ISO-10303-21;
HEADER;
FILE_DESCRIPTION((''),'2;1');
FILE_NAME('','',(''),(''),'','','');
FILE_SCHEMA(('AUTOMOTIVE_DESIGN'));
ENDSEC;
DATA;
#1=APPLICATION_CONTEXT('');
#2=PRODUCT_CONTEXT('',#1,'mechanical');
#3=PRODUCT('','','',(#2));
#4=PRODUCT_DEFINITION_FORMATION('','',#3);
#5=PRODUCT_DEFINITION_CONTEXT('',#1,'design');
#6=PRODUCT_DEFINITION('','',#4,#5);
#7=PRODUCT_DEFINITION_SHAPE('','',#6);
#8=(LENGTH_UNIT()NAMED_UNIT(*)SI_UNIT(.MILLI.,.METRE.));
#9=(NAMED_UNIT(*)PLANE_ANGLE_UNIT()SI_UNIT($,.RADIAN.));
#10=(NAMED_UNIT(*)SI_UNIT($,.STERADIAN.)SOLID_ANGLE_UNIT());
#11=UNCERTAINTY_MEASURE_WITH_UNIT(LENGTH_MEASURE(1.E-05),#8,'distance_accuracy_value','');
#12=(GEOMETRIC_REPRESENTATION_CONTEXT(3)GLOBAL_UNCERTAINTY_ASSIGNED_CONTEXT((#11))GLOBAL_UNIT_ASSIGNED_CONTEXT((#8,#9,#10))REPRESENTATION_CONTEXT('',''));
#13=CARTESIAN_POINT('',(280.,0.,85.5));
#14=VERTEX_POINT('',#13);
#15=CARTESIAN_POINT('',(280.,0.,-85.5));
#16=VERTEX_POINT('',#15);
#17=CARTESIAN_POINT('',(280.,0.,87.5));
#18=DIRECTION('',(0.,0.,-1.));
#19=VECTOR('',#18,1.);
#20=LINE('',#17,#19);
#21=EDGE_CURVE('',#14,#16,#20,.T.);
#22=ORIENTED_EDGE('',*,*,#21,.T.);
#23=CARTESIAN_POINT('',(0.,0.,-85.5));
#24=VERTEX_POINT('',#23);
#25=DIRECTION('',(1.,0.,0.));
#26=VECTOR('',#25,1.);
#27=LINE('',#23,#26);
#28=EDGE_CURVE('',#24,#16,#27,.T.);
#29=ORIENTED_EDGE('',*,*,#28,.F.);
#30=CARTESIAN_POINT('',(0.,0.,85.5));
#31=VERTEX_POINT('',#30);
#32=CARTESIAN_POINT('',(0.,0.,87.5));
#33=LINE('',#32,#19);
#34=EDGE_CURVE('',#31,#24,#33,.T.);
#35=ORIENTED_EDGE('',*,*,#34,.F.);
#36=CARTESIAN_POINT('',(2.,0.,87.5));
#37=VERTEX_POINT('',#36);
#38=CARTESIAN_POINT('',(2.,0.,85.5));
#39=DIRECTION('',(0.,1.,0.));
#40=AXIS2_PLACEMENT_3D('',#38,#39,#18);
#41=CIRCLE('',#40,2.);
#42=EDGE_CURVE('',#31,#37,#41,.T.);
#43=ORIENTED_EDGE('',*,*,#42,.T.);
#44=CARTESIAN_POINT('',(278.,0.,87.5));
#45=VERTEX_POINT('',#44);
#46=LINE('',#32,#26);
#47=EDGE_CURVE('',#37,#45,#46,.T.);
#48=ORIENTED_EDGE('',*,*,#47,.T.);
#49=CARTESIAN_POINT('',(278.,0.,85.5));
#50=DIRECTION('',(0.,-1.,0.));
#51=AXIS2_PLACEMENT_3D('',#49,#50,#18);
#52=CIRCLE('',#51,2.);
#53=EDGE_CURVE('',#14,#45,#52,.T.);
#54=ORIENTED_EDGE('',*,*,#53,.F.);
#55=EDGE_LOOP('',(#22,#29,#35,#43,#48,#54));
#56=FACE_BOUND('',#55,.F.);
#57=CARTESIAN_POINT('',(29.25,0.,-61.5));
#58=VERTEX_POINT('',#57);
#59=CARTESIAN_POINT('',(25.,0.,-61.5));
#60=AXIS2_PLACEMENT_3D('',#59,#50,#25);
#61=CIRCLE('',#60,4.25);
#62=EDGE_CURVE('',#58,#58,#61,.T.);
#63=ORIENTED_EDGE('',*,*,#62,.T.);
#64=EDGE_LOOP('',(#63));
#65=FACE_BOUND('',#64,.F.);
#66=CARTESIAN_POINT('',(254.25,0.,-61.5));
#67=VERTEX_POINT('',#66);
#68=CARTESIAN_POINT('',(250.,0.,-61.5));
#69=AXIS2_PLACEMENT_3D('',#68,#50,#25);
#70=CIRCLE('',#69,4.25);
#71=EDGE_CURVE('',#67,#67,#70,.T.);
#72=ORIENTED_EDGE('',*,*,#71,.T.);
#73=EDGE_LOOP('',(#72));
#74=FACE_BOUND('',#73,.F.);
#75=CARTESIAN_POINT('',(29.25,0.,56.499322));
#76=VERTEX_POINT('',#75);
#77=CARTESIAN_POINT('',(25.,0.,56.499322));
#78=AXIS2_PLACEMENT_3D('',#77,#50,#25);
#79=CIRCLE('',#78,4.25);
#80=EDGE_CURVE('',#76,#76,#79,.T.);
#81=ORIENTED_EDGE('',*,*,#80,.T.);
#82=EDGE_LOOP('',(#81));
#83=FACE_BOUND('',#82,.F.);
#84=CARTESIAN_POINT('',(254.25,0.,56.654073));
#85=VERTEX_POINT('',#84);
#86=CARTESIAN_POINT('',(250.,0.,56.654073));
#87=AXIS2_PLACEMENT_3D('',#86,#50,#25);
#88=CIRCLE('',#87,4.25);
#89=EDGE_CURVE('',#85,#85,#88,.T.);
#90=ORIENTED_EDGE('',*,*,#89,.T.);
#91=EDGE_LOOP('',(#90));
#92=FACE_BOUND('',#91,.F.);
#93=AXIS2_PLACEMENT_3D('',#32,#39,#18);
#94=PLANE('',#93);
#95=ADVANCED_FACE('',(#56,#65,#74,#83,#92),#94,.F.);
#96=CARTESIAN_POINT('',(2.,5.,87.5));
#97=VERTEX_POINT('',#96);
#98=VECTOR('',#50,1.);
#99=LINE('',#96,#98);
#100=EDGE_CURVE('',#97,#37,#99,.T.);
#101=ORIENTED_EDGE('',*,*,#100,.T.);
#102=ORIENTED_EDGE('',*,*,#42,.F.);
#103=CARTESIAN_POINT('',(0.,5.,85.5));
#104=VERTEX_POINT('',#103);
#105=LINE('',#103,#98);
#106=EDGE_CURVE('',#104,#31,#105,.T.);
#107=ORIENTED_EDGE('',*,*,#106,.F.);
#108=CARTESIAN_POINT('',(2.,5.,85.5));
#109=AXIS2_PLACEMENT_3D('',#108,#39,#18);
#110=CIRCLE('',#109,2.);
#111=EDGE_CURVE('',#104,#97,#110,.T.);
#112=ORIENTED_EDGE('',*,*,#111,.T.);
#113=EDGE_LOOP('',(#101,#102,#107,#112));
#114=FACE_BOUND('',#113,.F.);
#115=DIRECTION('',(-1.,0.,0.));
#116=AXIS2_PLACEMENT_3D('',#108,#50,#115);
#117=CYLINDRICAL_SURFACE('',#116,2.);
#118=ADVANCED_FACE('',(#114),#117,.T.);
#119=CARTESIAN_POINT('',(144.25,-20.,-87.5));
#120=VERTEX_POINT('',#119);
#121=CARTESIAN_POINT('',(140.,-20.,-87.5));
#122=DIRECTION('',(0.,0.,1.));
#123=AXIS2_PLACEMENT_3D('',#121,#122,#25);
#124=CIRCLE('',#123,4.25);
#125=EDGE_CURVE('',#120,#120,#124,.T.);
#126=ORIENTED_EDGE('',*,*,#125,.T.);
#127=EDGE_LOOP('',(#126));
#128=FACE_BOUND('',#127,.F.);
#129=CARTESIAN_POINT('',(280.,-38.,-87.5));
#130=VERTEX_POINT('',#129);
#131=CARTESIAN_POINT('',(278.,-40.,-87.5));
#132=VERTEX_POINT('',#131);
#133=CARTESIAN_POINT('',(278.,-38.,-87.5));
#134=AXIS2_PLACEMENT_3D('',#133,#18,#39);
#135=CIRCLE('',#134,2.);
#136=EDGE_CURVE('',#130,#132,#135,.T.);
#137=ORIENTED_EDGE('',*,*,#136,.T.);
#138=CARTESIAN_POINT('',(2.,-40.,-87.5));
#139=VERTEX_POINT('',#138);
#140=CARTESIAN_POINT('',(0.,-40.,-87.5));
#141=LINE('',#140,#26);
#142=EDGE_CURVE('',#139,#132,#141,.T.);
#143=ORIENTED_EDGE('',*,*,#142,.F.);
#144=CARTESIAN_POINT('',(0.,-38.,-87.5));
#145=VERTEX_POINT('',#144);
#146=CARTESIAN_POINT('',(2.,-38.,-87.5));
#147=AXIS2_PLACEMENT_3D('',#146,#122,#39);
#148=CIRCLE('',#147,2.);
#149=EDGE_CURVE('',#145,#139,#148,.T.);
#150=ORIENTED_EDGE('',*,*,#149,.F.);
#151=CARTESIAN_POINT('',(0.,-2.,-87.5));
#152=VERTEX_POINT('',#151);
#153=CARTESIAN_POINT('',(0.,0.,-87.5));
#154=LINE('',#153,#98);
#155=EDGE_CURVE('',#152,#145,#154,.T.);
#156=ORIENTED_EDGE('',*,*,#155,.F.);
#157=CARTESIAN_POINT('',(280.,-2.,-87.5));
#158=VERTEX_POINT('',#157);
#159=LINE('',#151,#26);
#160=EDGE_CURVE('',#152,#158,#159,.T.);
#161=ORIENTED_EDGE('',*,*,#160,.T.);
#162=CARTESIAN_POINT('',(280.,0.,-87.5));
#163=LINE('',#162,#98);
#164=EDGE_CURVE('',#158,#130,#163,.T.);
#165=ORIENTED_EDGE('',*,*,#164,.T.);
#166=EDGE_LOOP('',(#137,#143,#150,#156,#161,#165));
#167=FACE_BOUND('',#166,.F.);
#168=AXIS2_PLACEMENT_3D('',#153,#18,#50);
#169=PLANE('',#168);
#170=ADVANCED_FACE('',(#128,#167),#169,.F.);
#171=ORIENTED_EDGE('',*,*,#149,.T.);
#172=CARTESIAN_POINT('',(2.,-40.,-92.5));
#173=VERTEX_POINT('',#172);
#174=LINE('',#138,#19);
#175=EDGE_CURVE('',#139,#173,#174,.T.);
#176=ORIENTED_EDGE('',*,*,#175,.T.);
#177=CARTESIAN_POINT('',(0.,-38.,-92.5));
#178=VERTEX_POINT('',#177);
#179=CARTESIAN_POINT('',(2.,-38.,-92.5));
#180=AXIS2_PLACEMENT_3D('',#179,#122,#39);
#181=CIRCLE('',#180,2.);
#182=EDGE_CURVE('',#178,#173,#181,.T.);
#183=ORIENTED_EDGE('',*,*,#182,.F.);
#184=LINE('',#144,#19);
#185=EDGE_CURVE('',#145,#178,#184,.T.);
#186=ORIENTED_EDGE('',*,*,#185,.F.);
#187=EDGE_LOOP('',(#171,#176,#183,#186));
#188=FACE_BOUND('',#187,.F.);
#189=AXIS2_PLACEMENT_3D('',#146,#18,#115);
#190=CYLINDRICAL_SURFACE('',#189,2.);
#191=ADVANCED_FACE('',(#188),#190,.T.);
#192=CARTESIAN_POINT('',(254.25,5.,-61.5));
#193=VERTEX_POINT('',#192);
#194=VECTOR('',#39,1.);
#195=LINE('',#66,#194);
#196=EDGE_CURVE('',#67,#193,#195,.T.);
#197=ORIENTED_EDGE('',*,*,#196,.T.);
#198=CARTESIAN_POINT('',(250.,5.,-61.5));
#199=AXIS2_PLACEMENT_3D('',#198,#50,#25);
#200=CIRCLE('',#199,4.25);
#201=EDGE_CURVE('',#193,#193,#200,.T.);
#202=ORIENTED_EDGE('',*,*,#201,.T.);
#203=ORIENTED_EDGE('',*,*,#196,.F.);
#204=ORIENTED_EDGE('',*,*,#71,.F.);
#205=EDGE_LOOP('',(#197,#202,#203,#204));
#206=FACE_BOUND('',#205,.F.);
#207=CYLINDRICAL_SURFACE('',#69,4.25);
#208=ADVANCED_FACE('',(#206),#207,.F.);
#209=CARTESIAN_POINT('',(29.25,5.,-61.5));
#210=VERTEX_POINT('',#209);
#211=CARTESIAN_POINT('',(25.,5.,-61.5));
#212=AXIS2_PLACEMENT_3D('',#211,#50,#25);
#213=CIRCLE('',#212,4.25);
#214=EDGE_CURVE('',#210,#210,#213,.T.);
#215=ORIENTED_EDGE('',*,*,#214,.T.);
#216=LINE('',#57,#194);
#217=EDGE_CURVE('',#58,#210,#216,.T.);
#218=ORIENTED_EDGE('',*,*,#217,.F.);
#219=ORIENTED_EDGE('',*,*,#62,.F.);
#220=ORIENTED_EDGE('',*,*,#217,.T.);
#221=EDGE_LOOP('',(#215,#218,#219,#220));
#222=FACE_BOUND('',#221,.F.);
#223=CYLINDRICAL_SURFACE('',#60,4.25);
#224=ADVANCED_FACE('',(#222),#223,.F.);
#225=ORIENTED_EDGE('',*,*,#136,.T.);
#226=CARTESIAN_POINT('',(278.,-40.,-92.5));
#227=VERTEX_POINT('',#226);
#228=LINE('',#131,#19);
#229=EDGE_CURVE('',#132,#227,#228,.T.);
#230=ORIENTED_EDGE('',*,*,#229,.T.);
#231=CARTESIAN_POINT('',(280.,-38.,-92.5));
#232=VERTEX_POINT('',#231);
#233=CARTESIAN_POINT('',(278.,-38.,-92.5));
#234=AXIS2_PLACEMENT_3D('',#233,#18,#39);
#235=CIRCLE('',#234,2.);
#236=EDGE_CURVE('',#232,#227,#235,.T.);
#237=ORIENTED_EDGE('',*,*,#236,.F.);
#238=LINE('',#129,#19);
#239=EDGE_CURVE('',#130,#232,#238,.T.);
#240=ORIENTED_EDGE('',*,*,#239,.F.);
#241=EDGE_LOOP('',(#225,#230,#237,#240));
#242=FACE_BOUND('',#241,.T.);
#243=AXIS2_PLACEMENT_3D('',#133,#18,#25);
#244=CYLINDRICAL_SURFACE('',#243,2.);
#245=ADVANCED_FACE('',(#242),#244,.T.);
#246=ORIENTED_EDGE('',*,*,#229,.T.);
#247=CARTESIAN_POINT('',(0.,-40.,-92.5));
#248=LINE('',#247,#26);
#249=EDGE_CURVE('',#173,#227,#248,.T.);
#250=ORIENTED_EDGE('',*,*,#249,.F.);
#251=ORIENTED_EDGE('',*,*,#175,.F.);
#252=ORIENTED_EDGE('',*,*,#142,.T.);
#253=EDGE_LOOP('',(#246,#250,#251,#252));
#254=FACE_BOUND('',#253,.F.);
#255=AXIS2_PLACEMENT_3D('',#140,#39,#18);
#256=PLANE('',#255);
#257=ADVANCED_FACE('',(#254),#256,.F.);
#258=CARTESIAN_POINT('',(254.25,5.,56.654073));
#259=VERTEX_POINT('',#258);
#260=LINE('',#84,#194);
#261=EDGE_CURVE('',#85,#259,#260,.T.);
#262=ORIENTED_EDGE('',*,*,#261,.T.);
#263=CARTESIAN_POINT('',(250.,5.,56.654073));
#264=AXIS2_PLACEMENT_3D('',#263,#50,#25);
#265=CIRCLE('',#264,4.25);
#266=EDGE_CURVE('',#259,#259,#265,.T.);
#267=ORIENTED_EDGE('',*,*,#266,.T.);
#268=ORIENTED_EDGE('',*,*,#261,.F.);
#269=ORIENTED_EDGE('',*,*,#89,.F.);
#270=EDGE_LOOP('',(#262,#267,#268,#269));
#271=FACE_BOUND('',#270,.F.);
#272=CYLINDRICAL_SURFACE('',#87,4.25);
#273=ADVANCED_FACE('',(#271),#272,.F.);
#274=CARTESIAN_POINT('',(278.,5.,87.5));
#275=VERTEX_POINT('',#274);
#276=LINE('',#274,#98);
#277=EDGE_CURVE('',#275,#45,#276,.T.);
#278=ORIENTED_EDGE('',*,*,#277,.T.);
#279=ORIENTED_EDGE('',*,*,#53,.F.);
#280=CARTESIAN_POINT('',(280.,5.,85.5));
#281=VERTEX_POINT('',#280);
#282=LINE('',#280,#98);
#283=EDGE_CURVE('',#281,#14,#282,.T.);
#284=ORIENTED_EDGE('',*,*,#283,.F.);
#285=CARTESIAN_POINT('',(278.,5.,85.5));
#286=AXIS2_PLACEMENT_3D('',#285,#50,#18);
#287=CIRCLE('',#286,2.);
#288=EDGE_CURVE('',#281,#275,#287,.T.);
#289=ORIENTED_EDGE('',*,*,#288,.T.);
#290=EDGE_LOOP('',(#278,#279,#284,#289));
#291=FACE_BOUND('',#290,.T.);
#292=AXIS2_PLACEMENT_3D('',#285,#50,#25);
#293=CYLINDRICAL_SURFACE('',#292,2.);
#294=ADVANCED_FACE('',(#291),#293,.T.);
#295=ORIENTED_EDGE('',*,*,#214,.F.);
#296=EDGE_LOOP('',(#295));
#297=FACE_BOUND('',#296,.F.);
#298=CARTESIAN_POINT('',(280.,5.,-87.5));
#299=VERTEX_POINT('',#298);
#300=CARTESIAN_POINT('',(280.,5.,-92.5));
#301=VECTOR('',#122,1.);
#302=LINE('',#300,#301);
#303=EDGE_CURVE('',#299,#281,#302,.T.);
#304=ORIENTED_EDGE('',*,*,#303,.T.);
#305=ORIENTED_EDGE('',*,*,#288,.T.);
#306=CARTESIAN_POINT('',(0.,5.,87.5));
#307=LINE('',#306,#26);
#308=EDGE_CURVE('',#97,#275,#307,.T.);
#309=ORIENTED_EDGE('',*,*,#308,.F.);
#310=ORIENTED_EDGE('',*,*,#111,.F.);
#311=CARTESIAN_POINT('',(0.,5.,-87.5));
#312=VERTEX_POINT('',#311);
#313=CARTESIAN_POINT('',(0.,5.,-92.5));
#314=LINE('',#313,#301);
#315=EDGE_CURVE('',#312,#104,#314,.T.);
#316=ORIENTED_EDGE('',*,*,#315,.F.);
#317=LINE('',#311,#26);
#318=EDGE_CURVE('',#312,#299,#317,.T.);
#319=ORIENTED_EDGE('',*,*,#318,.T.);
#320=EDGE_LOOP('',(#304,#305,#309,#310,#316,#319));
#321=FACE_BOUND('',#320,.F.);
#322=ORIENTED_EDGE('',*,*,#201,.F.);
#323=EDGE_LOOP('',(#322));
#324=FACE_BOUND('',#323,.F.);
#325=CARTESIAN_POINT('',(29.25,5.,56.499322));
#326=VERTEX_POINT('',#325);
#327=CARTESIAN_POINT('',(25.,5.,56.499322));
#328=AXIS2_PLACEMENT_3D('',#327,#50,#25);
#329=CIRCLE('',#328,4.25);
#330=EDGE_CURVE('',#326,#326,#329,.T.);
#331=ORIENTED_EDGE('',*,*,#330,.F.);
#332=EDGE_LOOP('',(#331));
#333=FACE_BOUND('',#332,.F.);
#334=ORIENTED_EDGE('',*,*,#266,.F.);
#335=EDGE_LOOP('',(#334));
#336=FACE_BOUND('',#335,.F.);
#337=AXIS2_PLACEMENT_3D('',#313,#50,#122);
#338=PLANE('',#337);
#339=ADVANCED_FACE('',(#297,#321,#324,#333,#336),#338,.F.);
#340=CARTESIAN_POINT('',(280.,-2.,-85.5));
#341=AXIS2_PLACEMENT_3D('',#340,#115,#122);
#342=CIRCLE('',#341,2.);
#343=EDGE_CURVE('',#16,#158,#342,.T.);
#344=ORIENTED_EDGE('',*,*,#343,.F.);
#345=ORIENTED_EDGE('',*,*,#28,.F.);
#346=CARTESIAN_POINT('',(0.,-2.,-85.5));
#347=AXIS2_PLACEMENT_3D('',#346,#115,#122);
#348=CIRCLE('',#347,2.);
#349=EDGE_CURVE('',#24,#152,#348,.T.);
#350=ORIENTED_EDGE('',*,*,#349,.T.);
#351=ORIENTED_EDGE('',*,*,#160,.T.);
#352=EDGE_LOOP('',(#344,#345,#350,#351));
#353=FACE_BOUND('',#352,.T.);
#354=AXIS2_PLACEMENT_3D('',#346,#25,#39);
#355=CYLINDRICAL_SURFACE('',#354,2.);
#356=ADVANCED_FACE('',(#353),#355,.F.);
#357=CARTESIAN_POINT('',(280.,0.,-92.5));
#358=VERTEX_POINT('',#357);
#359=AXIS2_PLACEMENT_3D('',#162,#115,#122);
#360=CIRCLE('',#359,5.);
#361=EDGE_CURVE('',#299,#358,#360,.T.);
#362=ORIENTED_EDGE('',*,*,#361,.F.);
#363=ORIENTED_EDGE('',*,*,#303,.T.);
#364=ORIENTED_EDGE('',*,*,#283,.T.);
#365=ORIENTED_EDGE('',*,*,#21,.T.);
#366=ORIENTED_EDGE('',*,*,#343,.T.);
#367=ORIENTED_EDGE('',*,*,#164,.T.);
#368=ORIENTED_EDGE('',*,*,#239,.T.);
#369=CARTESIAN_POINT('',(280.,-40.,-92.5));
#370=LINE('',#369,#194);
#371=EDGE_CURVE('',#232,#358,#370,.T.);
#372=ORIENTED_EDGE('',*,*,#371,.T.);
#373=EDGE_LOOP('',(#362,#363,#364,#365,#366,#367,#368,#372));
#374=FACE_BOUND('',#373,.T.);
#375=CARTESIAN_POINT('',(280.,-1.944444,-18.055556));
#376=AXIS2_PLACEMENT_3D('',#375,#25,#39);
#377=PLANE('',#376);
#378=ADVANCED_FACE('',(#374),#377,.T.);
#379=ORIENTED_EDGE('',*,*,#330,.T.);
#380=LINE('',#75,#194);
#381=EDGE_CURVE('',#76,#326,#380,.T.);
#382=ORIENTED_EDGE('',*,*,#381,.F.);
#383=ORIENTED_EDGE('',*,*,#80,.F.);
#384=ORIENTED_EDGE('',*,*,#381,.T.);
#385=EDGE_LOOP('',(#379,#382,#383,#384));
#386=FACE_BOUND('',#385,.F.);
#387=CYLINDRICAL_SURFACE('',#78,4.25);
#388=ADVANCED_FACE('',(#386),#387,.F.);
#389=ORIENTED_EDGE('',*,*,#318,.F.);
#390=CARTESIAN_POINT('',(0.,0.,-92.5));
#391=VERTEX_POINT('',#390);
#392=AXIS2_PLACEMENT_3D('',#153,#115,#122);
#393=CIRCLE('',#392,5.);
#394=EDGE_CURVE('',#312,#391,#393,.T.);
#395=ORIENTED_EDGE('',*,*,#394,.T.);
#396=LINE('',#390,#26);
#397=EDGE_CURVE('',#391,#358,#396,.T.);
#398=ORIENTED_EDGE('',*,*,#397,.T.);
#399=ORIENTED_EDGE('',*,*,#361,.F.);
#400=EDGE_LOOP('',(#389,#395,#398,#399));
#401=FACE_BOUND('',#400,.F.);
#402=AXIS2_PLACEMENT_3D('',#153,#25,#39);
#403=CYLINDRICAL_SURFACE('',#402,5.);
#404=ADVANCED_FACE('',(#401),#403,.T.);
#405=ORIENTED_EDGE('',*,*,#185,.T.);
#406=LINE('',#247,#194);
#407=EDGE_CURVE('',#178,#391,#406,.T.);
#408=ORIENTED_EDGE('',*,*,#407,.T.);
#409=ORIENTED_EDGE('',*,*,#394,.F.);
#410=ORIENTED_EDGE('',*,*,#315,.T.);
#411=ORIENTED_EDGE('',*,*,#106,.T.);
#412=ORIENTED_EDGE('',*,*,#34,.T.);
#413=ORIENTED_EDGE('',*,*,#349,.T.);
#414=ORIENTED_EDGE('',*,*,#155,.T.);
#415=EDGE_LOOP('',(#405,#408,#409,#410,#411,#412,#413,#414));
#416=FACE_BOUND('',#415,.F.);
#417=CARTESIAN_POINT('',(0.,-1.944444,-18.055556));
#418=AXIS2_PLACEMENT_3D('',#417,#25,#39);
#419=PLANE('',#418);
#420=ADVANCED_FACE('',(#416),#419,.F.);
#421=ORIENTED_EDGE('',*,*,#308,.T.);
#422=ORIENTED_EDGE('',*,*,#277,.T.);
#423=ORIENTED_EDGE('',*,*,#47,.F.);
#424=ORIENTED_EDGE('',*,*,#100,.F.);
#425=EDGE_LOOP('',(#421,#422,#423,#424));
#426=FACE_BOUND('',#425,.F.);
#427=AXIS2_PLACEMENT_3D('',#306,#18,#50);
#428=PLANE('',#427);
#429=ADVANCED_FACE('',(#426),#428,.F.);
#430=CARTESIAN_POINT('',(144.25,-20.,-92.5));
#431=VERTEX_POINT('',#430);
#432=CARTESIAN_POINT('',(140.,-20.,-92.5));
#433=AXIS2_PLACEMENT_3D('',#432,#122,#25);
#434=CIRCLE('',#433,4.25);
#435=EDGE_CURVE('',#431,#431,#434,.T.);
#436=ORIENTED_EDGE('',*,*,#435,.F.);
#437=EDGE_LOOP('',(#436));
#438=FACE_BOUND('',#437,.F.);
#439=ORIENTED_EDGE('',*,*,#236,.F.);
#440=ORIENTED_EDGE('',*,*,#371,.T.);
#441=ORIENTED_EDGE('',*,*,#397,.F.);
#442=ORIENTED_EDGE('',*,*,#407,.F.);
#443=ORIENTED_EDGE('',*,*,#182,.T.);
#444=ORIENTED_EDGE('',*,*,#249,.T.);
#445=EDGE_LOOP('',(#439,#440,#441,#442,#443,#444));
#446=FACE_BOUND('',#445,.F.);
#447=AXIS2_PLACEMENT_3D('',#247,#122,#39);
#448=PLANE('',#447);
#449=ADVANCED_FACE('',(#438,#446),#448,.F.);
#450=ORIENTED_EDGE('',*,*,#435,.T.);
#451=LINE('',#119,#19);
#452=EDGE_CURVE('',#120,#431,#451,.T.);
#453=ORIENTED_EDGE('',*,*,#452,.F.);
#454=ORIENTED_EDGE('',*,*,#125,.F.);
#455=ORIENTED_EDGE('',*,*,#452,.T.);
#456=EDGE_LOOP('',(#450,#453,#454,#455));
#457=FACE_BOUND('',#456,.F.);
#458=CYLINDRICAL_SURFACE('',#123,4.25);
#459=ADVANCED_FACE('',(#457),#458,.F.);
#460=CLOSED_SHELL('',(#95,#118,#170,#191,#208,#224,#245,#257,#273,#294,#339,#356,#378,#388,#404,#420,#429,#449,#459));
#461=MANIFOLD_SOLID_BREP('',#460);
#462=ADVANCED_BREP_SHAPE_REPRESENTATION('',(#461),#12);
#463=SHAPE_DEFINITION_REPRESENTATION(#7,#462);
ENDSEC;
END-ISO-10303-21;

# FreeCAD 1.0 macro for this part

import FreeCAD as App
import Part
import Sketcher

V = App.Vector


def edges_at(feature, points):
    """Names of the edges that pass closest to the given points."""
    edges = feature.Shape.Edges
    near = lambda p: min(range(len(edges)), key=lambda i: edges[i].distToShape(Part.Vertex(*p))[0])
    return sorted({f"Edge{near(p) + 1}" for p in points})

doc = App.newDocument("Part")
params = doc.addObject("Spreadsheet::Sheet", "Params")
for row, (alias, value) in enumerate([
    ("sketch1_width", "5 mm"),
    ("sketch1_width2", "40 mm"),
    ("sketch1_height", "180 mm"),
    ("pad1_length", "280 mm"),
    ("sketch2_diameter", "8.5 mm"),
    ("fillet_radius", "2 mm"),
    ("fillet2_radius", "5 mm"),
    ("sketch3_diameter", "8.5 mm"),
], start=1):
    params.set(f"A{row}", alias)
    params.set(f"B{row}", "=" + value)
    params.setAlias(f"B{row}", alias)

body = doc.addObject("PartDesign::Body", "Body")

sketch1 = body.newObject("Sketcher::SketchObject", "Sketch")
sketch1.AttachmentSupport = (doc.getObject("YZ_Plane"), [""])
sketch1.MapMode = "FlatFace"
sketch1.addGeometry([
    Part.LineSegment(V(5, -92, 0), V(5, 88, 0)),
    Part.LineSegment(V(5, 88, 0), V(0, 88, 0)),
    Part.LineSegment(V(0, 88, 0), V(0, -88, 0)),
    Part.LineSegment(V(0, -88, 0), V(-40, -88, 0)),
    Part.LineSegment(V(-40, -88, 0), V(-40, -92, 0)),
    Part.LineSegment(V(-40, -92, 0), V(5, -92, 0)),
], False)
sketch1.addConstraint([
    Sketcher.Constraint("Coincident", 0, 2, 1, 1),
    Sketcher.Constraint("Coincident", 1, 2, 2, 1),
    Sketcher.Constraint("Coincident", 2, 2, 3, 1),
    Sketcher.Constraint("Coincident", 3, 2, 4, 1),
    Sketcher.Constraint("Coincident", 4, 2, 5, 1),
    Sketcher.Constraint("Coincident", 5, 2, 0, 1),
    Sketcher.Constraint("Vertical", 0),
    Sketcher.Constraint("Horizontal", 1),
    Sketcher.Constraint("Vertical", 2),
    Sketcher.Constraint("Horizontal", 3),
    Sketcher.Constraint("Vertical", 4),
    Sketcher.Constraint("Horizontal", 5),
    Sketcher.Constraint("Symmetric", 1, 2, 2, 2, -1, 1),
    Sketcher.Constraint("Equal", 1, 4),
    Sketcher.Constraint("DistanceX", 1, 2, 1, 1, 5.0),
    Sketcher.Constraint("DistanceX", 3, 2, 3, 1, 40.0),
    Sketcher.Constraint("DistanceY", 0, 1, 0, 2, 180.0),
])
sketch1.setExpression("Constraints[14]", "Params.sketch1_width")
sketch1.setExpression("Constraints[15]", "Params.sketch1_width2")
sketch1.setExpression("Constraints[16]", "Params.sketch1_height")
pad1 = body.newObject("PartDesign::Pad", "Pad")
pad1.Profile = sketch1
pad1.setExpression("Length", "Params.pad1_length")

sketch2 = body.newObject("Sketcher::SketchObject", "Sketch001")
sketch2.AttachmentSupport = (doc.getObject("XZ_Plane"), [""])
sketch2.MapMode = "FlatFace"
sketch2.addGeometry([
    Part.Circle(V(25, 56.5, 0), V(0, 0, 1), 4.2),
    Part.Circle(V(250, 56.7, 0), V(0, 0, 1), 4.2),
    Part.Circle(V(250, -61.5, 0), V(0, 0, 1), 4.2),
    Part.Circle(V(25, -61.5, 0), V(0, 0, 1), 4.2),
], False)
sketch2.addConstraint([
    Sketcher.Constraint("Equal", 0, 1),
    Sketcher.Constraint("Equal", 1, 2),
    Sketcher.Constraint("Equal", 2, 3),
    Sketcher.Constraint("Horizontal", 2, 3, 3, 3),
    Sketcher.Constraint("Vertical", 1, 3, 2, 3),
    Sketcher.Constraint("Vertical", 0, 3, 3, 3),
    Sketcher.Constraint("Diameter", 0, 8.5),
    Sketcher.Constraint("DistanceX", -1, 1, 0, 3, 25.0),
    Sketcher.Constraint("DistanceX", -1, 1, 1, 3, 250.0),
    Sketcher.Constraint("DistanceY", 2, 3, -1, 1, 61.5),
    Sketcher.Constraint("DistanceY", 0, 3, 1, 3, 0.154751),
    Sketcher.Constraint("DistanceY", -1, 1, 0, 3, 56.499322),
])
sketch2.setExpression("Constraints[6]", "Params.sketch2_diameter")
pocket1 = body.newObject("PartDesign::Pocket", "Pocket")
pocket1.Profile = sketch2
pocket1.Type = "ThroughAll"
doc.recompute()

fillet = body.newObject("PartDesign::Fillet", "Fillet")
fillet.Base = (pocket1, edges_at(pocket1, [
    (280, 2.5, 87.5),
    (0, 2.5, 87.5),
    (0, -40, -90),
    (280, -40, -90),
    (140, 0, -87.5),
]))
fillet.setExpression("Radius", "Params.fillet_radius")
doc.recompute()

fillet2 = body.newObject("PartDesign::Fillet", "Fillet001")
fillet2.Base = (fillet, edges_at(fillet, [(140, 5, -92.5)]))
fillet2.setExpression("Radius", "Params.fillet2_radius")

sketch3 = body.newObject("Sketcher::SketchObject", "Sketch002")
sketch3.AttachmentSupport = (doc.getObject("XY_Plane"), [""])
sketch3.MapMode = "FlatFace"
sketch3.AttachmentOffset = App.Placement(V(0, 0, -87.5), App.Rotation())
sketch3.addGeometry(Part.Circle(V(140, -20, 0), V(0, 0, 1), 4.2), False)
sketch3.addConstraint([
    Sketcher.Constraint("Diameter", 0, 8.5),
    Sketcher.Constraint("DistanceX", -1, 1, 0, 3, 140.0),
    Sketcher.Constraint("DistanceY", 0, 3, -1, 1, 20.0),
])
sketch3.setExpression("Constraints[0]", "Params.sketch3_diameter")
pocket2 = body.newObject("PartDesign::Pocket", "Pocket001")
pocket2.Profile = sketch3
pocket2.Type = "ThroughAll"

doc.recompute()
